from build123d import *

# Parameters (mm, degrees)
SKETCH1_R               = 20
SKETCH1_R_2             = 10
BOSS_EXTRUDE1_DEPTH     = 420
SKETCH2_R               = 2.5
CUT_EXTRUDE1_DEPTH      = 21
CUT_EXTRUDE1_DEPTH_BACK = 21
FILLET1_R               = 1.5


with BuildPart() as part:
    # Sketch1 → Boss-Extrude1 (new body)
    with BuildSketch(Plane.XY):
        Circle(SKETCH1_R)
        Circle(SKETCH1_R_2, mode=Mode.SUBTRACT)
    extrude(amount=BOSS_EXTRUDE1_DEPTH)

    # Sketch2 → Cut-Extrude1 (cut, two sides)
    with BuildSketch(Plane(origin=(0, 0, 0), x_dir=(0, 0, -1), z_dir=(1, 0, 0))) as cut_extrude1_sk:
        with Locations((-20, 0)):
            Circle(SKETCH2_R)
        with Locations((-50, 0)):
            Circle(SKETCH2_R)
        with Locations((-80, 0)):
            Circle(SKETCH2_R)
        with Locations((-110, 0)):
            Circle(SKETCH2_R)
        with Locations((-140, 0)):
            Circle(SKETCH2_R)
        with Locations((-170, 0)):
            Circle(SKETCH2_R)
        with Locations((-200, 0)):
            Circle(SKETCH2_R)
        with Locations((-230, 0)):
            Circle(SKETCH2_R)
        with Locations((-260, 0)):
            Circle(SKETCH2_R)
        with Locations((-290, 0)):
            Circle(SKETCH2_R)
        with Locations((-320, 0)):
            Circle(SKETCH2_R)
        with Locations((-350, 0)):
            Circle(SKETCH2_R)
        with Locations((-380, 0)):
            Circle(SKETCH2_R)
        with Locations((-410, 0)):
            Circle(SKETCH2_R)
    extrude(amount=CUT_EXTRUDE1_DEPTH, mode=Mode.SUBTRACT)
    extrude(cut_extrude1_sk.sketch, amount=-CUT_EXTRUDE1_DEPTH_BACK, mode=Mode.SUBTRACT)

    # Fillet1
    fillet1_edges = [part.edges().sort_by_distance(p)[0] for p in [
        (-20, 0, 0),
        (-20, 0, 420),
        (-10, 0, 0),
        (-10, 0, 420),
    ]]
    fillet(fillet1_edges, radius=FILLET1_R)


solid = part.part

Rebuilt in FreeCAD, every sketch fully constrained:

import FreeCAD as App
import Part
import Sketcher
Q = App.Units.Quantity


def edges_at(feature, points):
    """Names of the edges that pass closest to the given points."""
    edges = feature.Shape.Edges
    near = lambda p: min(range(len(edges)), key=lambda i: edges[i].distToShape(Part.Vertex(*p))[0])
    return sorted({f"Edge{near(p) + 1}" for p in points})

doc = App.newDocument("Part")
params = doc.addObject("Spreadsheet::Sheet", "Params")
for row, (alias, value) in enumerate([
    ("sketch1_diameter", "40 mm"),
    ("sketch1_diameter2", "20 mm"),
    ("pad1_length", "420 mm"),
    ("sketch2_diameter", "5 mm"),
    ("fillet_radius", "1.5 mm"),
], start=1):
    params.set(f"A{row}", alias)
    params.set(f"B{row}", "=" + value)
    params.setAlias(f"B{row}", alias)

body = doc.addObject("PartDesign::Body", "Body")

sketch1 = doc.addObject("Sketcher::SketchObject", "Sketch")
body.addObject(sketch1)
sketch1.AttachmentSupport = (doc.XY_Plane, [""])
sketch1.MapMode = "FlatFace"
sketch1.addGeometry(Part.Circle(App.Vector(0, 0, 0), App.Vector(0, 0, 1), 20), False)
sketch1.addGeometry(Part.Circle(App.Vector(0, 0, 0), App.Vector(0, 0, 1), 10), False)
sketch1.addConstraint(Sketcher.Constraint("Coincident", 0, 3, -1, 1))
sketch1.addConstraint(Sketcher.Constraint("Coincident", 1, 3, -1, 1))
sketch1.addConstraint(Sketcher.Constraint("Diameter", 0, Q("40 mm")))
sketch1.addConstraint(Sketcher.Constraint("Diameter", 1, Q("20 mm")))
sketch1.setExpression("Constraints[2]", "Params.sketch1_diameter")
sketch1.setExpression("Constraints[3]", "Params.sketch1_diameter2")
pad1 = doc.addObject("PartDesign::Pad", "Pad")
body.addObject(pad1)
pad1.Profile = sketch1
pad1.setExpression("Length", "Params.pad1_length")

sketch2 = doc.addObject("Sketcher::SketchObject", "Sketch001")
body.addObject(sketch2)
sketch2.AttachmentSupport = (doc.YZ_Plane, [""])
sketch2.MapMode = "FlatFace"
sketch2.addGeometry(Part.Circle(App.Vector(0, 20, 0), App.Vector(0, 0, 1), 2.5), False)
sketch2.addGeometry(Part.Circle(App.Vector(0, 50, 0), App.Vector(0, 0, 1), 2.5), False)
sketch2.addGeometry(Part.Circle(App.Vector(0, 80, 0), App.Vector(0, 0, 1), 2.5), False)
sketch2.addGeometry(Part.Circle(App.Vector(0, 110, 0), App.Vector(0, 0, 1), 2.5), False)
sketch2.addGeometry(Part.Circle(App.Vector(0, 140, 0), App.Vector(0, 0, 1), 2.5), False)
sketch2.addGeometry(Part.Circle(App.Vector(0, 170, 0), App.Vector(0, 0, 1), 2.5), False)
sketch2.addGeometry(Part.Circle(App.Vector(0, 200, 0), App.Vector(0, 0, 1), 2.5), False)
sketch2.addGeometry(Part.Circle(App.Vector(0, 230, 0), App.Vector(0, 0, 1), 2.5), False)
sketch2.addGeometry(Part.Circle(App.Vector(0, 260, 0), App.Vector(0, 0, 1), 2.5), False)
sketch2.addGeometry(Part.Circle(App.Vector(0, 290, 0), App.Vector(0, 0, 1), 2.5), False)
sketch2.addGeometry(Part.Circle(App.Vector(0, 320, 0), App.Vector(0, 0, 1), 2.5), False)
sketch2.addGeometry(Part.Circle(App.Vector(0, 350, 0), App.Vector(0, 0, 1), 2.5), False)
sketch2.addGeometry(Part.Circle(App.Vector(0, 380, 0), App.Vector(0, 0, 1), 2.5), False)
sketch2.addGeometry(Part.Circle(App.Vector(0, 410, 0), App.Vector(0, 0, 1), 2.5), False)
sketch2.addConstraint(Sketcher.Constraint("Equal", 0, 1))
sketch2.addConstraint(Sketcher.Constraint("Equal", 1, 2))
sketch2.addConstraint(Sketcher.Constraint("Equal", 2, 3))
sketch2.addConstraint(Sketcher.Constraint("Equal", 3, 4))
sketch2.addConstraint(Sketcher.Constraint("Equal", 4, 5))
sketch2.addConstraint(Sketcher.Constraint("Equal", 5, 6))
sketch2.addConstraint(Sketcher.Constraint("Equal", 6, 7))
sketch2.addConstraint(Sketcher.Constraint("Equal", 7, 8))
sketch2.addConstraint(Sketcher.Constraint("Equal", 8, 9))
sketch2.addConstraint(Sketcher.Constraint("Equal", 9, 10))
sketch2.addConstraint(Sketcher.Constraint("Equal", 10, 11))
sketch2.addConstraint(Sketcher.Constraint("Equal", 11, 12))
sketch2.addConstraint(Sketcher.Constraint("Equal", 12, 13))
sketch2.addConstraint(Sketcher.Constraint("PointOnObject", 0, 3, -2))
sketch2.addConstraint(Sketcher.Constraint("PointOnObject", 1, 3, -2))
sketch2.addConstraint(Sketcher.Constraint("PointOnObject", 2, 3, -2))
sketch2.addConstraint(Sketcher.Constraint("PointOnObject", 3, 3, -2))
sketch2.addConstraint(Sketcher.Constraint("PointOnObject", 4, 3, -2))
sketch2.addConstraint(Sketcher.Constraint("PointOnObject", 5, 3, -2))
sketch2.addConstraint(Sketcher.Constraint("PointOnObject", 6, 3, -2))
sketch2.addConstraint(Sketcher.Constraint("PointOnObject", 7, 3, -2))
sketch2.addConstraint(Sketcher.Constraint("PointOnObject", 8, 3, -2))
sketch2.addConstraint(Sketcher.Constraint("PointOnObject", 9, 3, -2))
sketch2.addConstraint(Sketcher.Constraint("PointOnObject", 10, 3, -2))
sketch2.addConstraint(Sketcher.Constraint("PointOnObject", 11, 3, -2))
sketch2.addConstraint(Sketcher.Constraint("PointOnObject", 12, 3, -2))
sketch2.addConstraint(Sketcher.Constraint("PointOnObject", 13, 3, -2))
sketch2.addConstraint(Sketcher.Constraint("Diameter", 0, Q("5 mm")))
sketch2.addConstraint(Sketcher.Constraint("DistanceY", -1, 1, 0, 3, Q("20 mm")))
sketch2.addConstraint(Sketcher.Constraint("DistanceY", -1, 1, 1, 3, Q("50 mm")))
sketch2.addConstraint(Sketcher.Constraint("DistanceY", -1, 1, 2, 3, Q("80 mm")))
sketch2.addConstraint(Sketcher.Constraint("DistanceY", -1, 1, 3, 3, Q("110 mm")))
sketch2.addConstraint(Sketcher.Constraint("DistanceY", -1, 1, 4, 3, Q("140 mm")))
sketch2.addConstraint(Sketcher.Constraint("DistanceY", -1, 1, 5, 3, Q("170 mm")))
sketch2.addConstraint(Sketcher.Constraint("DistanceY", -1, 1, 6, 3, Q("200 mm")))
sketch2.addConstraint(Sketcher.Constraint("DistanceY", -1, 1, 7, 3, Q("230 mm")))
sketch2.addConstraint(Sketcher.Constraint("DistanceY", -1, 1, 8, 3, Q("260 mm")))
sketch2.addConstraint(Sketcher.Constraint("DistanceY", -1, 1, 9, 3, Q("290 mm")))
sketch2.addConstraint(Sketcher.Constraint("DistanceY", -1, 1, 10, 3, Q("320 mm")))
sketch2.addConstraint(Sketcher.Constraint("DistanceY", -1, 1, 11, 3, Q("350 mm")))
sketch2.addConstraint(Sketcher.Constraint("DistanceY", -1, 1, 12, 3, Q("380 mm")))
sketch2.addConstraint(Sketcher.Constraint("DistanceY", -1, 1, 13, 3, Q("410 mm")))
sketch2.setExpression("Constraints[27]", "Params.sketch2_diameter")
pocket1 = doc.addObject("PartDesign::Pocket", "Pocket")
body.addObject(pocket1)
pocket1.Profile = sketch2
pocket1.Type = "ThroughAll"
pocket1.Midplane = True
doc.recompute()

fillet = doc.addObject("PartDesign::Fillet", "Fillet")
body.addObject(fillet)
fillet.Base = (pocket1, edges_at(pocket1, [
    (-20, 0, 0),
    (-20, 0, 420),
    (-10, 0, 0),
    (-10, 0, 420),
]))
fillet.setExpression("Radius", "Params.fillet_radius")

doc.recompute()
